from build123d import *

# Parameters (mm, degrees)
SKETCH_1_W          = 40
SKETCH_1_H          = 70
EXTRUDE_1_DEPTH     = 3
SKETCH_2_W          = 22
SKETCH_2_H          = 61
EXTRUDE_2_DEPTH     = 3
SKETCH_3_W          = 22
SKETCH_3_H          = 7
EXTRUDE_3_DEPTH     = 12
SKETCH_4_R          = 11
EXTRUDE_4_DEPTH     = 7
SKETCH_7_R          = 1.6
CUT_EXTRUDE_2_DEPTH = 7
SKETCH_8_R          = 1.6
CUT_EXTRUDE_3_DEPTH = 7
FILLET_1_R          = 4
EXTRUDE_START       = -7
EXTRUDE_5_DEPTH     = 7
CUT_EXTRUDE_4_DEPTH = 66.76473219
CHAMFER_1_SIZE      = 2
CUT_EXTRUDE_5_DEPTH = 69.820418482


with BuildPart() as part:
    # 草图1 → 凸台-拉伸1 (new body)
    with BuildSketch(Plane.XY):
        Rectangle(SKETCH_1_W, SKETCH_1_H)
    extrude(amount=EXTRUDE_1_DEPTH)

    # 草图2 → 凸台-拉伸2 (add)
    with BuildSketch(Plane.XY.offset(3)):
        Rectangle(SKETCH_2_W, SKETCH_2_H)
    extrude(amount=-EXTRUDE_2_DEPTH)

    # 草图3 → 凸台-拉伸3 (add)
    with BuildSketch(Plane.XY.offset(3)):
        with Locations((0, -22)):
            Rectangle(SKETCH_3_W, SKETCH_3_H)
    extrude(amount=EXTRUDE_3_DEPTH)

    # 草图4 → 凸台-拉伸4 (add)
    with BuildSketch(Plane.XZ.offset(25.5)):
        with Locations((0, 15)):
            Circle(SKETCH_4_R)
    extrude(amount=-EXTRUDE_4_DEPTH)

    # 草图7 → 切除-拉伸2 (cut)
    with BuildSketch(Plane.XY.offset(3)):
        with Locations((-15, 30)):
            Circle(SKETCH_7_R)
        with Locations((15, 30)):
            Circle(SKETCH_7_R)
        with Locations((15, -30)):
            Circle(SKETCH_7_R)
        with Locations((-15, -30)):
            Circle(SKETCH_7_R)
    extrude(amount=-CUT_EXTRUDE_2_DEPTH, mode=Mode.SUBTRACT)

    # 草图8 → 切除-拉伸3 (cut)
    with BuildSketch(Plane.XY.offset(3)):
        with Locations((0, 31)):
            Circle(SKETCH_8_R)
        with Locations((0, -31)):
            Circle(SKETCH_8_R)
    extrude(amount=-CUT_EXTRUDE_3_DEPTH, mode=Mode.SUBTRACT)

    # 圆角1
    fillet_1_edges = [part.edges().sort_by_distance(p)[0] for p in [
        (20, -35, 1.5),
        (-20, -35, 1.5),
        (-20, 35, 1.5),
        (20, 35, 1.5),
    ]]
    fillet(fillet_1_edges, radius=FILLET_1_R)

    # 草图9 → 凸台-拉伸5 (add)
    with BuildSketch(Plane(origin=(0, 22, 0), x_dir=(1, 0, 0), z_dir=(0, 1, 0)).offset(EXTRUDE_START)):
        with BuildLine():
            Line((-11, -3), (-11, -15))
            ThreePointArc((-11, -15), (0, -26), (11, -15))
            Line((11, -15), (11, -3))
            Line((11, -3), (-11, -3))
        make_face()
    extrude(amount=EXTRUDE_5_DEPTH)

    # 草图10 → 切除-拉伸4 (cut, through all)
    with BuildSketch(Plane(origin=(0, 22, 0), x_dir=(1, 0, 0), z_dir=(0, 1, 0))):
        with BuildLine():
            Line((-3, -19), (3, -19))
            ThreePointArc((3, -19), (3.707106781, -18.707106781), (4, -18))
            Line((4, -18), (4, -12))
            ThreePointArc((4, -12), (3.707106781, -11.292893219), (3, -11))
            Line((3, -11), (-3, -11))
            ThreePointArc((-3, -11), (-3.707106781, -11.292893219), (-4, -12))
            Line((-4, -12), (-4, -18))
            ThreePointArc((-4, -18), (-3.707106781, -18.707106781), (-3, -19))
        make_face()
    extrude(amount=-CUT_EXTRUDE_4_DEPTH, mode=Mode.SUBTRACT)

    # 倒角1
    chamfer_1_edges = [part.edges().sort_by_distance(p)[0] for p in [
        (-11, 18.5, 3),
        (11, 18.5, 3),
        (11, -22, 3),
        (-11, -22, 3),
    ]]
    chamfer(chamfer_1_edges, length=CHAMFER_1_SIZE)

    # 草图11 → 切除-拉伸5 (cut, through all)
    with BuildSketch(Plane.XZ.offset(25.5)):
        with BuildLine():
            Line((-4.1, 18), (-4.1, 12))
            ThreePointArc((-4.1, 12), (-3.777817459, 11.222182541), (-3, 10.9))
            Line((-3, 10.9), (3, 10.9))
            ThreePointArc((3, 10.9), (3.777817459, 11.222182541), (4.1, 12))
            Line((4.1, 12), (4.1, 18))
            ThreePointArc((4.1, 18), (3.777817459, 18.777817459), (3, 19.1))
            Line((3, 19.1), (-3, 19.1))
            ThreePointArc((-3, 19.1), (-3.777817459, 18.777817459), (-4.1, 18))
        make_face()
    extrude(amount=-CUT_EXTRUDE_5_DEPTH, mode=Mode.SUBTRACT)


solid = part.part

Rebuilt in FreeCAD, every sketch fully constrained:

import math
import FreeCAD as App
import Part
import Sketcher
from FreeCAD import Vector


def edges_at(feature, points):
    """Names of the edges that pass closest to the given points."""
    edges = feature.Shape.Edges
    near = lambda p: min(range(len(edges)), key=lambda i: edges[i].distToShape(Part.Vertex(*p))[0])
    return sorted({f"Edge{near(p) + 1}" for p in points})

doc = App.newDocument("Part")
body = doc.addObject("PartDesign::Body", "Body")

# Sketch on XY plane
sketch1 = doc.addObject("Sketcher::SketchObject", "Sketch")
body.addObject(sketch1)
sketch1.AttachmentSupport = (doc.XY_Plane, [""])
sketch1.MapMode = "FlatFace"
sketch1.addGeometry([
    Part.LineSegment(Vector(-20, 35, 0), Vector(-20, -35, 0)),
    Part.LineSegment(Vector(-20, -35, 0), Vector(20, -35, 0)),
    Part.LineSegment(Vector(20, -35, 0), Vector(20, 35, 0)),
    Part.LineSegment(Vector(20, 35, 0), Vector(-20, 35, 0)),
], False)
sketch1.addConstraint([
    Sketcher.Constraint("Coincident", 0, 2, 1, 1),
    Sketcher.Constraint("Coincident", 1, 2, 2, 1),
    Sketcher.Constraint("Coincident", 2, 2, 3, 1),
    Sketcher.Constraint("Coincident", 3, 2, 0, 1),
    Sketcher.Constraint("Vertical", 0),
    Sketcher.Constraint("Horizontal", 1),
    Sketcher.Constraint("Vertical", 2),
    Sketcher.Constraint("Horizontal", 3),
    Sketcher.Constraint("Symmetric", 0, 2, 2, 2, -1, 1),
    Sketcher.Constraint("DistanceX", 1, 1, 1, 2, 40.0),
    Sketcher.Constraint("DistanceY", 0, 2, 0, 1, 70.0),
])
pad1 = doc.addObject("PartDesign::Pad", "Pad")
body.addObject(pad1)
pad1.Profile = sketch1
pad1.Length = 3

# Sketch on XY plane
sketch2 = doc.addObject("Sketcher::SketchObject", "Sketch001")
body.addObject(sketch2)
sketch2.AttachmentSupport = (doc.XY_Plane, [""])
sketch2.MapMode = "FlatFace"
sketch2.AttachmentOffset = App.Placement(Vector(0, 0, 3), App.Rotation())
sketch2.addGeometry([
    Part.LineSegment(Vector(-11, 30, 0), Vector(-11, -30, 0)),
    Part.LineSegment(Vector(-11, -30, 0), Vector(11, -30, 0)),
    Part.LineSegment(Vector(11, -30, 0), Vector(11, 30, 0)),
    Part.LineSegment(Vector(11, 30, 0), Vector(-11, 30, 0)),
], False)
sketch2.addConstraint([
    Sketcher.Constraint("Coincident", 0, 2, 1, 1),
    Sketcher.Constraint("Coincident", 1, 2, 2, 1),
    Sketcher.Constraint("Coincident", 2, 2, 3, 1),
    Sketcher.Constraint("Coincident", 3, 2, 0, 1),
    Sketcher.Constraint("Vertical", 0),
    Sketcher.Constraint("Horizontal", 1),
    Sketcher.Constraint("Vertical", 2),
    Sketcher.Constraint("Horizontal", 3),
    Sketcher.Constraint("Symmetric", 0, 2, 2, 2, -1, 1),
    Sketcher.Constraint("DistanceX", 1, 1, 1, 2, 22.0),
    Sketcher.Constraint("DistanceY", 0, 2, 0, 1, 61.0),
])
pad2 = doc.addObject("PartDesign::Pad", "Pad001")
body.addObject(pad2)
pad2.Profile = sketch2
pad2.Length = 3
pad2.Reversed = True

# Sketch on XY plane
sketch3 = doc.addObject("Sketcher::SketchObject", "Sketch002")
body.addObject(sketch3)
sketch3.AttachmentSupport = (doc.XY_Plane, [""])
sketch3.MapMode = "FlatFace"
sketch3.AttachmentOffset = App.Placement(Vector(0, 0, 3), App.Rotation())
sketch3.addGeometry([
    Part.LineSegment(Vector(-11, -18, 0), Vector(-11, -26, 0)),
    Part.LineSegment(Vector(-11, -26, 0), Vector(11, -26, 0)),
    Part.LineSegment(Vector(11, -26, 0), Vector(11, -18, 0)),
    Part.LineSegment(Vector(11, -18, 0), Vector(-11, -18, 0)),
], False)
sketch3.addConstraint([
    Sketcher.Constraint("Coincident", 0, 2, 1, 1),
    Sketcher.Constraint("Coincident", 1, 2, 2, 1),
    Sketcher.Constraint("Coincident", 2, 2, 3, 1),
    Sketcher.Constraint("Coincident", 3, 2, 0, 1),
    Sketcher.Constraint("Vertical", 0),
    Sketcher.Constraint("Horizontal", 1),
    Sketcher.Constraint("Vertical", 2),
    Sketcher.Constraint("Horizontal", 3),
    Sketcher.Constraint("DistanceX", 1, 1, 1, 2, 22.0),
    Sketcher.Constraint("DistanceY", 0, 2, 0, 1, 7.0),
    Sketcher.Constraint("DistanceX", 0, 2, -1, 1, 11.0),
    Sketcher.Constraint("DistanceY", 0, 2, -1, 1, 25.5),
])
pad3 = doc.addObject("PartDesign::Pad", "Pad002")
body.addObject(pad3)
pad3.Profile = sketch3
pad3.Length = 12

# Sketch on XZ plane
sketch4 = doc.addObject("Sketcher::SketchObject", "Sketch003")
body.addObject(sketch4)
sketch4.AttachmentSupport = (doc.XZ_Plane, [""])
sketch4.MapMode = "FlatFace"
sketch4.AttachmentOffset = App.Placement(Vector(0, 0, 25.5), App.Rotation())
sketch4.addGeometry(Part.Circle(Vector(0, 15, 0), Vector(0, 0, 1), 11), False)
sketch4.addConstraint([
    Sketcher.Constraint("PointOnObject", 0, 3, -2),
    Sketcher.Constraint("Diameter", 0, 22.0),
    Sketcher.Constraint("DistanceY", -1, 1, 0, 3, 15.0),
])
pad4 = doc.addObject("PartDesign::Pad", "Pad003")
body.addObject(pad4)
pad4.Profile = sketch4
pad4.Length = 7
pad4.Reversed = True

# Sketch on XY plane
sketch5 = doc.addObject("Sketcher::SketchObject", "Sketch004")
body.addObject(sketch5)
sketch5.AttachmentSupport = (doc.XY_Plane, [""])
sketch5.MapMode = "FlatFace"
sketch5.AttachmentOffset = App.Placement(Vector(0, 0, 3), App.Rotation())
sketch5.addGeometry([
    Part.Circle(Vector(-15, 30, 0), Vector(0, 0, 1), 1.6),
    Part.Circle(Vector(15, 30, 0), Vector(0, 0, 1), 1.6),
    Part.Circle(Vector(15, -30, 0), Vector(0, 0, 1), 1.6),
    Part.Circle(Vector(-15, -30, 0), Vector(0, 0, 1), 1.6),
], False)
sketch5.addConstraint([
    Sketcher.Constraint("Equal", 0, 1),
    Sketcher.Constraint("Equal", 1, 2),
    Sketcher.Constraint("Equal", 2, 3),
    Sketcher.Constraint("Symmetric", 0, 3, 2, 3, -1, 1),
    Sketcher.Constraint("Symmetric", 1, 3, 3, 3, -1, 1),
    Sketcher.Constraint("Symmetric", 0, 3, 1, 3, -2),
    Sketcher.Constraint("Diameter", 0, 3.2),
    Sketcher.Constraint("DistanceX", 0, 3, -1, 1, 15.0),
    Sketcher.Constraint("DistanceY", -1, 1, 0, 3, 30.0),
])
pocket1 = doc.addObject("PartDesign::Pocket", "Pocket")
body.addObject(pocket1)
pocket1.Profile = sketch5
pocket1.Length = 7

# Sketch on XY plane
sketch6 = doc.addObject("Sketcher::SketchObject", "Sketch005")
body.addObject(sketch6)
sketch6.AttachmentSupport = (doc.XY_Plane, [""])
sketch6.MapMode = "FlatFace"
sketch6.AttachmentOffset = App.Placement(Vector(0, 0, 3), App.Rotation())
sketch6.addGeometry([
    Part.Circle(Vector(0, 31, 0), Vector(0, 0, 1), 1.6),
    Part.Circle(Vector(0, -31, 0), Vector(0, 0, 1), 1.6),
], False)
sketch6.addConstraint([
    Sketcher.Constraint("Equal", 0, 1),
    Sketcher.Constraint("Symmetric", 0, 3, 1, 3, -1, 1),
    Sketcher.Constraint("PointOnObject", 0, 3, -2),
    Sketcher.Constraint("Diameter", 0, 3.2),
    Sketcher.Constraint("DistanceY", -1, 1, 0, 3, 31.0),
])
pocket2 = doc.addObject("PartDesign::Pocket", "Pocket001")
body.addObject(pocket2)
pocket2.Profile = sketch6
pocket2.Length = 7
doc.recompute()

fillet = doc.addObject("PartDesign::Fillet", "Fillet")
body.addObject(fillet)
fillet.Base = (pocket2, edges_at(pocket2, [
    (20, -35, 1.5),
    (-20, -35, 1.5),
    (-20, 35, 1.5),
    (20, 35, 1.5),
]))
fillet.Radius = 4

# Sketch on XZ plane
sketch7 = doc.addObject("Sketcher::SketchObject", "Sketch006")
body.addObject(sketch7)
sketch7.AttachmentSupport = (doc.XZ_Plane, [""])
sketch7.MapMode = "FlatFace"
sketch7.AttachmentOffset = App.Placement(Vector(0, 0, -15), App.Rotation())
sketch7.addGeometry([
    Part.LineSegment(Vector(-11, 3, 0), Vector(-11, 15, 0)),
    Part.ArcOfCircle(Part.Circle(Vector(0, 15, 0), Vector(0, 0, 1), 11), math.radians(0), math.radians(180)),
    Part.LineSegment(Vector(11, 15, 0), Vector(11, 3, 0)),
    Part.LineSegment(Vector(11, 3, 0), Vector(-11, 3, 0)),
], False)
sketch7.addConstraint([
    Sketcher.Constraint("Tangent", 0, 2, 1, 2),
    Sketcher.Constraint("Tangent", 1, 1, 2, 1),
    Sketcher.Constraint("Coincident", 2, 2, 3, 1),
    Sketcher.Constraint("Coincident", 3, 2, 0, 1),
    Sketcher.Constraint("Vertical", 0),
    Sketcher.Constraint("Vertical", 2),
    Sketcher.Constraint("Horizontal", 3),
    Sketcher.Constraint("PointOnObject", 1, 3, -2),
    Sketcher.Constraint("Radius", 1, 11.0),
    Sketcher.Constraint("DistanceY", 0, 1, 0, 2, 12.0),
    Sketcher.Constraint("DistanceY", -1, 1, 1, 3, 15.0),
])
pad5 = doc.addObject("PartDesign::Pad", "Pad004")
body.addObject(pad5)
pad5.Profile = sketch7
pad5.Length = 7
pad5.Reversed = True

# Sketch on XZ plane
sketch8 = doc.addObject("Sketcher::SketchObject", "Sketch007")
body.addObject(sketch8)
sketch8.AttachmentSupport = (doc.XZ_Plane, [""])
sketch8.MapMode = "FlatFace"
sketch8.AttachmentOffset = App.Placement(Vector(0, 0, -22), App.Rotation())
sketch8.addGeometry([
    Part.LineSegment(Vector(-3, 19, 0), Vector(3, 19, 0)),  # 0
    Part.ArcOfCircle(Part.Circle(Vector(3, 18, 0), Vector(0, 0, 1), 1), math.radians(0), math.radians(90)),  # 1
    Part.LineSegment(Vector(4, 18, 0), Vector(4, 12, 0)),  # 2
    Part.ArcOfCircle(Part.Circle(Vector(3, 12, 0), Vector(0, 0, 1), 1), math.radians(-90), math.radians(0)),  # 3
    Part.LineSegment(Vector(3, 11, 0), Vector(-3, 11, 0)),  # 4
    Part.ArcOfCircle(Part.Circle(Vector(-3, 12, 0), Vector(0, 0, 1), 1), math.radians(-180), math.radians(-90)),  # 5
    Part.LineSegment(Vector(-4, 12, 0), Vector(-4, 18, 0)),  # 6
    Part.ArcOfCircle(Part.Circle(Vector(-3, 18, 0), Vector(0, 0, 1), 1), math.radians(90), math.radians(180)),  # 7
], False)
sketch8.addConstraint([
    Sketcher.Constraint("Tangent", 0, 2, 1, 2),
    Sketcher.Constraint("Tangent", 1, 1, 2, 1),
    Sketcher.Constraint("Tangent", 2, 2, 3, 2),
    Sketcher.Constraint("Tangent", 3, 1, 4, 1),
    Sketcher.Constraint("Tangent", 4, 2, 5, 2),
    Sketcher.Constraint("Tangent", 5, 1, 6, 1),
    Sketcher.Constraint("Tangent", 6, 2, 7, 2),
    Sketcher.Constraint("Tangent", 7, 1, 0, 1),
    Sketcher.Constraint("Horizontal", 0),
    Sketcher.Constraint("Vertical", 2),
    Sketcher.Constraint("Horizontal", 4),
    Sketcher.Constraint("Vertical", 6),
    Sketcher.Constraint("Equal", 1, 3),
    Sketcher.Constraint("Equal", 3, 5),
    Sketcher.Constraint("Equal", 5, 7),
    Sketcher.Constraint("Equal", 4, 2),
    Sketcher.Constraint("Radius", 1, 1.0),
    Sketcher.Constraint("DistanceX", 0, 1, 0, 2, 6.0),
    Sketcher.Constraint("DistanceX", -1, 1, 1, 3, 3.0),
    Sketcher.Constraint("DistanceY", -1, 1, 1, 3, 18.0),
])
pocket3 = doc.addObject("PartDesign::Pocket", "Pocket002")
body.addObject(pocket3)
pocket3.Profile = sketch8
pocket3.Type = "ThroughAll"
pocket3.Reversed = True
doc.recompute()

chamfer = doc.addObject("PartDesign::Chamfer", "Chamfer")
body.addObject(chamfer)
chamfer.Base = (pocket3, edges_at(pocket3, [
    (-11, 18.5, 3),
    (11, 18.5, 3),
    (11, -22, 3),
    (-11, -22, 3),
]))
chamfer.Size = 2

# Sketch on XZ plane
sketch9 = doc.addObject("Sketcher::SketchObject", "Sketch008")
body.addObject(sketch9)
sketch9.AttachmentSupport = (doc.XZ_Plane, [""])
sketch9.MapMode = "FlatFace"
sketch9.AttachmentOffset = App.Placement(Vector(0, 0, 25.5), App.Rotation())
sketch9.addGeometry([
    Part.LineSegment(Vector(-4.1, 18, 0), Vector(-4.1, 12, 0)),  # 0
    Part.ArcOfCircle(Part.Circle(Vector(-3, 12, 0), Vector(0, 0, 1), 1.1), math.radians(-180), math.radians(-90)),  # 1
    Part.LineSegment(Vector(-3, 10.9, 0), Vector(3, 10.9, 0)),  # 2
    Part.ArcOfCircle(Part.Circle(Vector(3, 12, 0), Vector(0, 0, 1), 1.1), math.radians(-90), math.radians(0)),  # 3
    Part.LineSegment(Vector(4.1, 12, 0), Vector(4.1, 18, 0)),  # 4
    Part.ArcOfCircle(Part.Circle(Vector(3, 18, 0), Vector(0, 0, 1), 1.1), math.radians(0), math.radians(90)),  # 5
    Part.LineSegment(Vector(3, 19.1, 0), Vector(-3, 19.1, 0)),  # 6
    Part.ArcOfCircle(Part.Circle(Vector(-3, 18, 0), Vector(0, 0, 1), 1.1), math.radians(90), math.radians(180)),  # 7
], False)
sketch9.addConstraint([
    Sketcher.Constraint("Tangent", 0, 2, 1, 1),
    Sketcher.Constraint("Tangent", 1, 2, 2, 1),
    Sketcher.Constraint("Tangent", 2, 2, 3, 1),
    Sketcher.Constraint("Tangent", 3, 2, 4, 1),
    Sketcher.Constraint("Tangent", 4, 2, 5, 1),
    Sketcher.Constraint("Tangent", 5, 2, 6, 1),
    Sketcher.Constraint("Tangent", 6, 2, 7, 1),
    Sketcher.Constraint("Tangent", 7, 2, 0, 1),
    Sketcher.Constraint("Vertical", 0),
    Sketcher.Constraint("Horizontal", 2),
    Sketcher.Constraint("Vertical", 4),
    Sketcher.Constraint("Horizontal", 6),
    Sketcher.Constraint("Equal", 1, 3),
    Sketcher.Constraint("Equal", 3, 5),
    Sketcher.Constraint("Equal", 5, 7),
    Sketcher.Constraint("Equal", 6, 0),
    Sketcher.Constraint("Radius", 1, 1.1),
    Sketcher.Constraint("DistanceX", 2, 1, 2, 2, 6.0),
    Sketcher.Constraint("DistanceX", 1, 3, -1, 1, 3.0),
    Sketcher.Constraint("DistanceY", -1, 1, 1, 3, 12.0),
])
pocket4 = doc.addObject("PartDesign::Pocket", "Pocket003")
body.addObject(pocket4)
pocket4.Profile = sketch9
pocket4.Type = "ThroughAll"

doc.recompute()
